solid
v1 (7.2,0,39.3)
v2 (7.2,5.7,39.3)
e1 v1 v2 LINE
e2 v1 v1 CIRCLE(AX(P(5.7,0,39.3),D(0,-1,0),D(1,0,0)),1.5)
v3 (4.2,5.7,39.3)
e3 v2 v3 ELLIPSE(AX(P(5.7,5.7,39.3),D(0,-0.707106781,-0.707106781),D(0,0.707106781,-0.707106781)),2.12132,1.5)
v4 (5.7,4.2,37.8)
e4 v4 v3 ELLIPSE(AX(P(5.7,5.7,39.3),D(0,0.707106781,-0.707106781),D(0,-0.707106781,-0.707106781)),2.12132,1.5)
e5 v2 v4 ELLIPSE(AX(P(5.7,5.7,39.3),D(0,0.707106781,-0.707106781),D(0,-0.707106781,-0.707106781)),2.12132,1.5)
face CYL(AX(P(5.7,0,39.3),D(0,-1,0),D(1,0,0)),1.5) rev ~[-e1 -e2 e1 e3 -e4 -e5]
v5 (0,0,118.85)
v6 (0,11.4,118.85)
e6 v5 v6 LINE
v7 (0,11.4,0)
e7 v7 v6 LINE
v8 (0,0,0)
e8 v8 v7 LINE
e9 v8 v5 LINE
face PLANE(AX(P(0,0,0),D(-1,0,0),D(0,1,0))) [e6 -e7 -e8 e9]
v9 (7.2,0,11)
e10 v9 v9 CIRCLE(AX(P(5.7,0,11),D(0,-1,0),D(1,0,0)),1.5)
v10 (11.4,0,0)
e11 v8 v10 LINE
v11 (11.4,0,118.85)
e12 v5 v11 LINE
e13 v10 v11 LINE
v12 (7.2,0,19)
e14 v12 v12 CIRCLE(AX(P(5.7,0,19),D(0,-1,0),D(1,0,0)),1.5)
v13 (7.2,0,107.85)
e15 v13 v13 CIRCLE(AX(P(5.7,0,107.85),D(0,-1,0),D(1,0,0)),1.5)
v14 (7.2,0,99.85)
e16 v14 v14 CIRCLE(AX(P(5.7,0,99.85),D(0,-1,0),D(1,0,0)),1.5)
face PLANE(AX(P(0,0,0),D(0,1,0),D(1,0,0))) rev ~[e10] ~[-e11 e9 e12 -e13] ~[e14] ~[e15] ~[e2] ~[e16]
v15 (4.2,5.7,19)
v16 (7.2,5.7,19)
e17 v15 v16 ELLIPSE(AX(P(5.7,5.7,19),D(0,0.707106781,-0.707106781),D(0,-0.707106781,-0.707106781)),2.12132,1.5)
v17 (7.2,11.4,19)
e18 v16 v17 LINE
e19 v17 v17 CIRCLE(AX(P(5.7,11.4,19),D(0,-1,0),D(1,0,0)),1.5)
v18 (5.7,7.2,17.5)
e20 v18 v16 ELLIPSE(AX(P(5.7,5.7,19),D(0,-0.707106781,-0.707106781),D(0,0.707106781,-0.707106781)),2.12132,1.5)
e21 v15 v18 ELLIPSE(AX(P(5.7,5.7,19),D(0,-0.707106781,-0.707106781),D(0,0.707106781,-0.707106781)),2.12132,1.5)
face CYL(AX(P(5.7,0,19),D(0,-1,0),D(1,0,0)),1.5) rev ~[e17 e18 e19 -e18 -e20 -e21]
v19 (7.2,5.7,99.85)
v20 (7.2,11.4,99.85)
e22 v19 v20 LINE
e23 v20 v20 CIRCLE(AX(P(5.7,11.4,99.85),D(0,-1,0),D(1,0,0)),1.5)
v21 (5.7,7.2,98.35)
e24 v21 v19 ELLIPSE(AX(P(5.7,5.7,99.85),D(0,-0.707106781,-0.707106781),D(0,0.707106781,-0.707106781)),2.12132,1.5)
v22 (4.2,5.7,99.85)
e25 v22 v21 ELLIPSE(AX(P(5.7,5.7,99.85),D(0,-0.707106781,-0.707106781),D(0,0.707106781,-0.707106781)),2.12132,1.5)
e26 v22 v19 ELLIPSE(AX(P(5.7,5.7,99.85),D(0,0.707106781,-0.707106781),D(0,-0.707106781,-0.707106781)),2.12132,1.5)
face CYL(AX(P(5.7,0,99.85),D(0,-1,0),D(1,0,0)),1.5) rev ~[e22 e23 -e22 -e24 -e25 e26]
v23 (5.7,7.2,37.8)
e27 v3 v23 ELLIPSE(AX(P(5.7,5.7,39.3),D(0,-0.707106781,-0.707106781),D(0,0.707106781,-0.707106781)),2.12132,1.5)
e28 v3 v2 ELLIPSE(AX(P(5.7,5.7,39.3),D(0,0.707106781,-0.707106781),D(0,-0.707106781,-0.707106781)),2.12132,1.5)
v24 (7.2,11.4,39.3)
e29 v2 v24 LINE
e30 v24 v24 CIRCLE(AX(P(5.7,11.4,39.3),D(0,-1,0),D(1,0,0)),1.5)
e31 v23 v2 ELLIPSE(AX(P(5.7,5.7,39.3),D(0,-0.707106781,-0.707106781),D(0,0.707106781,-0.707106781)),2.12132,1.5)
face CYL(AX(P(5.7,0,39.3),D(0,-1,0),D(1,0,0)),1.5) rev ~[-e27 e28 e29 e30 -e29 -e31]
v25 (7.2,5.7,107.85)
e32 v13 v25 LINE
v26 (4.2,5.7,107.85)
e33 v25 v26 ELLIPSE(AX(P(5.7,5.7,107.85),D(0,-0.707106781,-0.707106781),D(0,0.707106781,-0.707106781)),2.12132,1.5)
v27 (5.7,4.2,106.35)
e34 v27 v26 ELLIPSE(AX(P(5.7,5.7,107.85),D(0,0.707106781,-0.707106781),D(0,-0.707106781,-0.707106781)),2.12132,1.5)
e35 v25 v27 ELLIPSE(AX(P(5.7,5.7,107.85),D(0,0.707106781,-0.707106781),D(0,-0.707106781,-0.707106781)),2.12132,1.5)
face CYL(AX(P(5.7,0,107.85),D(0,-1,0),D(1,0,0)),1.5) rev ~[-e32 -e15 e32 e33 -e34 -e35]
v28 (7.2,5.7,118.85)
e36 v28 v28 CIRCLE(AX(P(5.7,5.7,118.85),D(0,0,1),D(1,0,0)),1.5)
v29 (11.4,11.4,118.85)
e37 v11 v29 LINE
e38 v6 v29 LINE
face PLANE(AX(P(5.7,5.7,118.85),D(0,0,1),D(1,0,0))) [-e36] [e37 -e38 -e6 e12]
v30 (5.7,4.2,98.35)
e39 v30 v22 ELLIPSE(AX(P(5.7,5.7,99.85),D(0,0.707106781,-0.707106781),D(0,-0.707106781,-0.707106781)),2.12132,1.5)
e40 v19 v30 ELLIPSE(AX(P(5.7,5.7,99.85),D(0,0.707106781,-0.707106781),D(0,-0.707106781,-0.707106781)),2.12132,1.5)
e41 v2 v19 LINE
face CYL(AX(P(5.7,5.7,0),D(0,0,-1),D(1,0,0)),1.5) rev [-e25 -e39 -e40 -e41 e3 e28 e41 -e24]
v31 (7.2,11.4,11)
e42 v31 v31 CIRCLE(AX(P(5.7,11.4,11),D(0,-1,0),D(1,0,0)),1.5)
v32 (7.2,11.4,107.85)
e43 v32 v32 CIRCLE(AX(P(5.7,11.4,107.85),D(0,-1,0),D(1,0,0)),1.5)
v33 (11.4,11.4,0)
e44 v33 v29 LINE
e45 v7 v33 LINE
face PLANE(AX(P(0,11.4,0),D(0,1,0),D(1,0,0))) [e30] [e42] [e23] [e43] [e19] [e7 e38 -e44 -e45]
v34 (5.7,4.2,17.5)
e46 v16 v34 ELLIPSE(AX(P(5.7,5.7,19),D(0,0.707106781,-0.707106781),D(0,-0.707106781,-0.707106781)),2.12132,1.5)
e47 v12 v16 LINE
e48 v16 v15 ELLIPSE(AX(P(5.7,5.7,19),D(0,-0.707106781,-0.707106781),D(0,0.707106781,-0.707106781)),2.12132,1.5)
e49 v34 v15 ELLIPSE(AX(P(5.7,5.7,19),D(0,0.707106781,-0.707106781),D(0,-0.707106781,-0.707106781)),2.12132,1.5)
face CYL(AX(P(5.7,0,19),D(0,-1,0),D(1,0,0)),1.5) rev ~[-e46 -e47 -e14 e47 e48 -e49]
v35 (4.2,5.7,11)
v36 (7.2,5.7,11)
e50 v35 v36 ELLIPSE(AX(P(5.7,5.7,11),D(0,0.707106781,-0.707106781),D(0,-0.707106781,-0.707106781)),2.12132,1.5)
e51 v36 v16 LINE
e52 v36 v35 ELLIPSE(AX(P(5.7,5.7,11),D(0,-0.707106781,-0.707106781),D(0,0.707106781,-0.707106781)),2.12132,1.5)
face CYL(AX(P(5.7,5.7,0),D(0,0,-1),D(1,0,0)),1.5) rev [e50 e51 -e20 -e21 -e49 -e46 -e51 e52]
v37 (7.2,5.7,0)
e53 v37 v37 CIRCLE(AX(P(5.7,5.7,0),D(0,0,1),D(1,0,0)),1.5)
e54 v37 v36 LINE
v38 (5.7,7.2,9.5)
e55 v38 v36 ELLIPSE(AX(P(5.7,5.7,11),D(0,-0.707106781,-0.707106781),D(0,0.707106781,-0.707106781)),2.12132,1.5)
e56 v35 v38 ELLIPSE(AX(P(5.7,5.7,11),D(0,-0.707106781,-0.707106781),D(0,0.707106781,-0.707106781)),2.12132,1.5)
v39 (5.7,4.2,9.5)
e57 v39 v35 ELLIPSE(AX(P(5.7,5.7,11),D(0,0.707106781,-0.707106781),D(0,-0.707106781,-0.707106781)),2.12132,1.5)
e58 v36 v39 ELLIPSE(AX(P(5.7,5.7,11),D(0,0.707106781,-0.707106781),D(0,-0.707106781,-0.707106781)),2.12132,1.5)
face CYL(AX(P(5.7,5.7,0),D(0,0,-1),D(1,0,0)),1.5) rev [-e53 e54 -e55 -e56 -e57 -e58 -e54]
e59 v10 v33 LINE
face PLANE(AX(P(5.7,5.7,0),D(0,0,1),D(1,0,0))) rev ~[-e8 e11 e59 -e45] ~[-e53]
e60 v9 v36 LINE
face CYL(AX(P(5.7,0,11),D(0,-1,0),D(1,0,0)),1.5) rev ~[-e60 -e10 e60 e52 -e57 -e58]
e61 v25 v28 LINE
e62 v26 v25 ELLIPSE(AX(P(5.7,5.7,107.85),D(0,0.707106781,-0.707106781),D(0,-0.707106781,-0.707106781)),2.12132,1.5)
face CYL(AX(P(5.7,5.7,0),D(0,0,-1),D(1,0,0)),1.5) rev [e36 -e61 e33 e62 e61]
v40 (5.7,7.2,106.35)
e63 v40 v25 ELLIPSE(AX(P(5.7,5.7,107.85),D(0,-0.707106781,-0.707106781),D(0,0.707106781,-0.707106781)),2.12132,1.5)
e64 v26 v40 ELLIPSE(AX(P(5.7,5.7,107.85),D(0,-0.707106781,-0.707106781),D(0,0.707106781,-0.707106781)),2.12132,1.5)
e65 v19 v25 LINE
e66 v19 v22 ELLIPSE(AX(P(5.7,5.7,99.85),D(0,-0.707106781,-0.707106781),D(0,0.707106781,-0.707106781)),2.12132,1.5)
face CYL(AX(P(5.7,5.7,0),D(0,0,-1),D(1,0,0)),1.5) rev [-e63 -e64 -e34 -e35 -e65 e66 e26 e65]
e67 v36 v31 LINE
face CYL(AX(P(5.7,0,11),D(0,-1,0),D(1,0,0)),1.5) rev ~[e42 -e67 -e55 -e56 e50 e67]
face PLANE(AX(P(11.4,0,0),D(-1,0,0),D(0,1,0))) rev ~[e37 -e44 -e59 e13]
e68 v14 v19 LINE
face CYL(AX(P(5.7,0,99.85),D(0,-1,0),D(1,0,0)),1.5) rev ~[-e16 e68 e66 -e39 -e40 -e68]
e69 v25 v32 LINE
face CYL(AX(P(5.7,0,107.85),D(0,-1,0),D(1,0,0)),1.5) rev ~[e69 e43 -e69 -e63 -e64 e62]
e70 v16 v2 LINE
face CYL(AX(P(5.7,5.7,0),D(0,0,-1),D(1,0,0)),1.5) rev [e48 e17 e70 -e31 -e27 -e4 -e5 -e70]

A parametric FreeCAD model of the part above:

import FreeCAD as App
import Part
import Sketcher

V = App.Vector
Q = App.Units.Quantity


def add_polygon(sketch, points):
    """Adds a closed chain of lines whose ends are joined by coincident constraints."""
    first, n = sketch.GeometryCount, len(points)
    for a, b in zip(points, points[1:] + points[:1]):
        sketch.addGeometry(Part.LineSegment(App.Vector(*a, 0), App.Vector(*b, 0)), False)
    for i in range(n):
        sketch.addConstraint(Sketcher.Constraint("Coincident", first + i, 2, first + (i + 1) % n, 1))

doc = App.newDocument("Part")
body = doc.addObject("PartDesign::Body", "Body")

# Sketch on XY plane
sketch1 = body.newObject("Sketcher::SketchObject", "Sketch")
sketch1.AttachmentSupport = (doc.getObject("XY_Plane"), [""])
sketch1.MapMode = "FlatFace"
add_polygon(sketch1, [(0, 11.4), (0, 0), (11.4, 0), (11.4, 11.4)])  # lines 0-3
sketch1.addGeometry(Part.Circle(V(5.7, 5.7, 0), V(0, 0, 1), 1.5), False)  # 4
sketch1.addConstraint([
    Sketcher.Constraint("Vertical", 0),
    Sketcher.Constraint("Horizontal", 1),
    Sketcher.Constraint("Vertical", 2),
    Sketcher.Constraint("Horizontal", 3),
    Sketcher.Constraint("Coincident", 0, 2, -1, 1),
    Sketcher.Constraint("Equal", 3, 0),
    Sketcher.Constraint("Diameter", 4, Q("3 mm")),
    Sketcher.Constraint("DistanceX", 1, 1, 1, 2, Q("11.4 mm")),
    Sketcher.Constraint("DistanceX", -1, 1, 4, 3, Q("5.7 mm")),
    Sketcher.Constraint("DistanceY", -1, 1, 4, 3, Q("5.7 mm")),
])
pad1 = body.newObject("PartDesign::Pad", "Pad")
pad1.Profile = sketch1
pad1.Length = 118.85

# Sketch on XZ plane
sketch2 = body.newObject("Sketcher::SketchObject", "Sketch001")
sketch2.AttachmentSupport = (doc.getObject("XZ_Plane"), [""])
sketch2.MapMode = "FlatFace"
sketch2.addGeometry([
    Part.Circle(V(5.7, 11, 0), V(0, 0, 1), 1.5),  # 0
    Part.Circle(V(5.7, 19, 0), V(0, 0, 1), 1.5),  # 1
    Part.Circle(V(5.7, 107.8, 0), V(0, 0, 1), 1.5),  # 2
    Part.Circle(V(5.7, 99.8, 0), V(0, 0, 1), 1.5),  # 3
    Part.Circle(V(5.7, 39.3, 0), V(0, 0, 1), 1.5),  # 4
], False)
sketch2.addConstraint([
    Sketcher.Constraint("Equal", 0, 1),
    Sketcher.Constraint("Equal", 1, 2),
    Sketcher.Constraint("Equal", 2, 3),
    Sketcher.Constraint("Equal", 3, 4),
    Sketcher.Constraint("Vertical", 0, 3, 1, 3),
    Sketcher.Constraint("Vertical", 1, 3, 2, 3),
    Sketcher.Constraint("Vertical", 2, 3, 3, 3),
    Sketcher.Constraint("Vertical", 3, 3, 4, 3),
    Sketcher.Constraint("Diameter", 0, Q("3 mm")),
    Sketcher.Constraint("DistanceY", -1, 1, 0, 3, Q("11 mm")),
    Sketcher.Constraint("DistanceY", -1, 1, 1, 3, Q("19 mm")),
    Sketcher.Constraint("DistanceY", 3, 3, 2, 3, Q("8 mm")),
    Sketcher.Constraint("DistanceX", -1, 1, 0, 3, Q("5.7 mm")),
    Sketcher.Constraint("DistanceY", -1, 1, 4, 3, Q("39.3 mm")),
    Sketcher.Constraint("DistanceY", -1, 1, 2, 3, Q("107.85 mm")),
])
pocket1 = body.newObject("PartDesign::Pocket", "Pocket")
pocket1.Profile = sketch2
pocket1.Type = "ThroughAll"

doc.recompute()
